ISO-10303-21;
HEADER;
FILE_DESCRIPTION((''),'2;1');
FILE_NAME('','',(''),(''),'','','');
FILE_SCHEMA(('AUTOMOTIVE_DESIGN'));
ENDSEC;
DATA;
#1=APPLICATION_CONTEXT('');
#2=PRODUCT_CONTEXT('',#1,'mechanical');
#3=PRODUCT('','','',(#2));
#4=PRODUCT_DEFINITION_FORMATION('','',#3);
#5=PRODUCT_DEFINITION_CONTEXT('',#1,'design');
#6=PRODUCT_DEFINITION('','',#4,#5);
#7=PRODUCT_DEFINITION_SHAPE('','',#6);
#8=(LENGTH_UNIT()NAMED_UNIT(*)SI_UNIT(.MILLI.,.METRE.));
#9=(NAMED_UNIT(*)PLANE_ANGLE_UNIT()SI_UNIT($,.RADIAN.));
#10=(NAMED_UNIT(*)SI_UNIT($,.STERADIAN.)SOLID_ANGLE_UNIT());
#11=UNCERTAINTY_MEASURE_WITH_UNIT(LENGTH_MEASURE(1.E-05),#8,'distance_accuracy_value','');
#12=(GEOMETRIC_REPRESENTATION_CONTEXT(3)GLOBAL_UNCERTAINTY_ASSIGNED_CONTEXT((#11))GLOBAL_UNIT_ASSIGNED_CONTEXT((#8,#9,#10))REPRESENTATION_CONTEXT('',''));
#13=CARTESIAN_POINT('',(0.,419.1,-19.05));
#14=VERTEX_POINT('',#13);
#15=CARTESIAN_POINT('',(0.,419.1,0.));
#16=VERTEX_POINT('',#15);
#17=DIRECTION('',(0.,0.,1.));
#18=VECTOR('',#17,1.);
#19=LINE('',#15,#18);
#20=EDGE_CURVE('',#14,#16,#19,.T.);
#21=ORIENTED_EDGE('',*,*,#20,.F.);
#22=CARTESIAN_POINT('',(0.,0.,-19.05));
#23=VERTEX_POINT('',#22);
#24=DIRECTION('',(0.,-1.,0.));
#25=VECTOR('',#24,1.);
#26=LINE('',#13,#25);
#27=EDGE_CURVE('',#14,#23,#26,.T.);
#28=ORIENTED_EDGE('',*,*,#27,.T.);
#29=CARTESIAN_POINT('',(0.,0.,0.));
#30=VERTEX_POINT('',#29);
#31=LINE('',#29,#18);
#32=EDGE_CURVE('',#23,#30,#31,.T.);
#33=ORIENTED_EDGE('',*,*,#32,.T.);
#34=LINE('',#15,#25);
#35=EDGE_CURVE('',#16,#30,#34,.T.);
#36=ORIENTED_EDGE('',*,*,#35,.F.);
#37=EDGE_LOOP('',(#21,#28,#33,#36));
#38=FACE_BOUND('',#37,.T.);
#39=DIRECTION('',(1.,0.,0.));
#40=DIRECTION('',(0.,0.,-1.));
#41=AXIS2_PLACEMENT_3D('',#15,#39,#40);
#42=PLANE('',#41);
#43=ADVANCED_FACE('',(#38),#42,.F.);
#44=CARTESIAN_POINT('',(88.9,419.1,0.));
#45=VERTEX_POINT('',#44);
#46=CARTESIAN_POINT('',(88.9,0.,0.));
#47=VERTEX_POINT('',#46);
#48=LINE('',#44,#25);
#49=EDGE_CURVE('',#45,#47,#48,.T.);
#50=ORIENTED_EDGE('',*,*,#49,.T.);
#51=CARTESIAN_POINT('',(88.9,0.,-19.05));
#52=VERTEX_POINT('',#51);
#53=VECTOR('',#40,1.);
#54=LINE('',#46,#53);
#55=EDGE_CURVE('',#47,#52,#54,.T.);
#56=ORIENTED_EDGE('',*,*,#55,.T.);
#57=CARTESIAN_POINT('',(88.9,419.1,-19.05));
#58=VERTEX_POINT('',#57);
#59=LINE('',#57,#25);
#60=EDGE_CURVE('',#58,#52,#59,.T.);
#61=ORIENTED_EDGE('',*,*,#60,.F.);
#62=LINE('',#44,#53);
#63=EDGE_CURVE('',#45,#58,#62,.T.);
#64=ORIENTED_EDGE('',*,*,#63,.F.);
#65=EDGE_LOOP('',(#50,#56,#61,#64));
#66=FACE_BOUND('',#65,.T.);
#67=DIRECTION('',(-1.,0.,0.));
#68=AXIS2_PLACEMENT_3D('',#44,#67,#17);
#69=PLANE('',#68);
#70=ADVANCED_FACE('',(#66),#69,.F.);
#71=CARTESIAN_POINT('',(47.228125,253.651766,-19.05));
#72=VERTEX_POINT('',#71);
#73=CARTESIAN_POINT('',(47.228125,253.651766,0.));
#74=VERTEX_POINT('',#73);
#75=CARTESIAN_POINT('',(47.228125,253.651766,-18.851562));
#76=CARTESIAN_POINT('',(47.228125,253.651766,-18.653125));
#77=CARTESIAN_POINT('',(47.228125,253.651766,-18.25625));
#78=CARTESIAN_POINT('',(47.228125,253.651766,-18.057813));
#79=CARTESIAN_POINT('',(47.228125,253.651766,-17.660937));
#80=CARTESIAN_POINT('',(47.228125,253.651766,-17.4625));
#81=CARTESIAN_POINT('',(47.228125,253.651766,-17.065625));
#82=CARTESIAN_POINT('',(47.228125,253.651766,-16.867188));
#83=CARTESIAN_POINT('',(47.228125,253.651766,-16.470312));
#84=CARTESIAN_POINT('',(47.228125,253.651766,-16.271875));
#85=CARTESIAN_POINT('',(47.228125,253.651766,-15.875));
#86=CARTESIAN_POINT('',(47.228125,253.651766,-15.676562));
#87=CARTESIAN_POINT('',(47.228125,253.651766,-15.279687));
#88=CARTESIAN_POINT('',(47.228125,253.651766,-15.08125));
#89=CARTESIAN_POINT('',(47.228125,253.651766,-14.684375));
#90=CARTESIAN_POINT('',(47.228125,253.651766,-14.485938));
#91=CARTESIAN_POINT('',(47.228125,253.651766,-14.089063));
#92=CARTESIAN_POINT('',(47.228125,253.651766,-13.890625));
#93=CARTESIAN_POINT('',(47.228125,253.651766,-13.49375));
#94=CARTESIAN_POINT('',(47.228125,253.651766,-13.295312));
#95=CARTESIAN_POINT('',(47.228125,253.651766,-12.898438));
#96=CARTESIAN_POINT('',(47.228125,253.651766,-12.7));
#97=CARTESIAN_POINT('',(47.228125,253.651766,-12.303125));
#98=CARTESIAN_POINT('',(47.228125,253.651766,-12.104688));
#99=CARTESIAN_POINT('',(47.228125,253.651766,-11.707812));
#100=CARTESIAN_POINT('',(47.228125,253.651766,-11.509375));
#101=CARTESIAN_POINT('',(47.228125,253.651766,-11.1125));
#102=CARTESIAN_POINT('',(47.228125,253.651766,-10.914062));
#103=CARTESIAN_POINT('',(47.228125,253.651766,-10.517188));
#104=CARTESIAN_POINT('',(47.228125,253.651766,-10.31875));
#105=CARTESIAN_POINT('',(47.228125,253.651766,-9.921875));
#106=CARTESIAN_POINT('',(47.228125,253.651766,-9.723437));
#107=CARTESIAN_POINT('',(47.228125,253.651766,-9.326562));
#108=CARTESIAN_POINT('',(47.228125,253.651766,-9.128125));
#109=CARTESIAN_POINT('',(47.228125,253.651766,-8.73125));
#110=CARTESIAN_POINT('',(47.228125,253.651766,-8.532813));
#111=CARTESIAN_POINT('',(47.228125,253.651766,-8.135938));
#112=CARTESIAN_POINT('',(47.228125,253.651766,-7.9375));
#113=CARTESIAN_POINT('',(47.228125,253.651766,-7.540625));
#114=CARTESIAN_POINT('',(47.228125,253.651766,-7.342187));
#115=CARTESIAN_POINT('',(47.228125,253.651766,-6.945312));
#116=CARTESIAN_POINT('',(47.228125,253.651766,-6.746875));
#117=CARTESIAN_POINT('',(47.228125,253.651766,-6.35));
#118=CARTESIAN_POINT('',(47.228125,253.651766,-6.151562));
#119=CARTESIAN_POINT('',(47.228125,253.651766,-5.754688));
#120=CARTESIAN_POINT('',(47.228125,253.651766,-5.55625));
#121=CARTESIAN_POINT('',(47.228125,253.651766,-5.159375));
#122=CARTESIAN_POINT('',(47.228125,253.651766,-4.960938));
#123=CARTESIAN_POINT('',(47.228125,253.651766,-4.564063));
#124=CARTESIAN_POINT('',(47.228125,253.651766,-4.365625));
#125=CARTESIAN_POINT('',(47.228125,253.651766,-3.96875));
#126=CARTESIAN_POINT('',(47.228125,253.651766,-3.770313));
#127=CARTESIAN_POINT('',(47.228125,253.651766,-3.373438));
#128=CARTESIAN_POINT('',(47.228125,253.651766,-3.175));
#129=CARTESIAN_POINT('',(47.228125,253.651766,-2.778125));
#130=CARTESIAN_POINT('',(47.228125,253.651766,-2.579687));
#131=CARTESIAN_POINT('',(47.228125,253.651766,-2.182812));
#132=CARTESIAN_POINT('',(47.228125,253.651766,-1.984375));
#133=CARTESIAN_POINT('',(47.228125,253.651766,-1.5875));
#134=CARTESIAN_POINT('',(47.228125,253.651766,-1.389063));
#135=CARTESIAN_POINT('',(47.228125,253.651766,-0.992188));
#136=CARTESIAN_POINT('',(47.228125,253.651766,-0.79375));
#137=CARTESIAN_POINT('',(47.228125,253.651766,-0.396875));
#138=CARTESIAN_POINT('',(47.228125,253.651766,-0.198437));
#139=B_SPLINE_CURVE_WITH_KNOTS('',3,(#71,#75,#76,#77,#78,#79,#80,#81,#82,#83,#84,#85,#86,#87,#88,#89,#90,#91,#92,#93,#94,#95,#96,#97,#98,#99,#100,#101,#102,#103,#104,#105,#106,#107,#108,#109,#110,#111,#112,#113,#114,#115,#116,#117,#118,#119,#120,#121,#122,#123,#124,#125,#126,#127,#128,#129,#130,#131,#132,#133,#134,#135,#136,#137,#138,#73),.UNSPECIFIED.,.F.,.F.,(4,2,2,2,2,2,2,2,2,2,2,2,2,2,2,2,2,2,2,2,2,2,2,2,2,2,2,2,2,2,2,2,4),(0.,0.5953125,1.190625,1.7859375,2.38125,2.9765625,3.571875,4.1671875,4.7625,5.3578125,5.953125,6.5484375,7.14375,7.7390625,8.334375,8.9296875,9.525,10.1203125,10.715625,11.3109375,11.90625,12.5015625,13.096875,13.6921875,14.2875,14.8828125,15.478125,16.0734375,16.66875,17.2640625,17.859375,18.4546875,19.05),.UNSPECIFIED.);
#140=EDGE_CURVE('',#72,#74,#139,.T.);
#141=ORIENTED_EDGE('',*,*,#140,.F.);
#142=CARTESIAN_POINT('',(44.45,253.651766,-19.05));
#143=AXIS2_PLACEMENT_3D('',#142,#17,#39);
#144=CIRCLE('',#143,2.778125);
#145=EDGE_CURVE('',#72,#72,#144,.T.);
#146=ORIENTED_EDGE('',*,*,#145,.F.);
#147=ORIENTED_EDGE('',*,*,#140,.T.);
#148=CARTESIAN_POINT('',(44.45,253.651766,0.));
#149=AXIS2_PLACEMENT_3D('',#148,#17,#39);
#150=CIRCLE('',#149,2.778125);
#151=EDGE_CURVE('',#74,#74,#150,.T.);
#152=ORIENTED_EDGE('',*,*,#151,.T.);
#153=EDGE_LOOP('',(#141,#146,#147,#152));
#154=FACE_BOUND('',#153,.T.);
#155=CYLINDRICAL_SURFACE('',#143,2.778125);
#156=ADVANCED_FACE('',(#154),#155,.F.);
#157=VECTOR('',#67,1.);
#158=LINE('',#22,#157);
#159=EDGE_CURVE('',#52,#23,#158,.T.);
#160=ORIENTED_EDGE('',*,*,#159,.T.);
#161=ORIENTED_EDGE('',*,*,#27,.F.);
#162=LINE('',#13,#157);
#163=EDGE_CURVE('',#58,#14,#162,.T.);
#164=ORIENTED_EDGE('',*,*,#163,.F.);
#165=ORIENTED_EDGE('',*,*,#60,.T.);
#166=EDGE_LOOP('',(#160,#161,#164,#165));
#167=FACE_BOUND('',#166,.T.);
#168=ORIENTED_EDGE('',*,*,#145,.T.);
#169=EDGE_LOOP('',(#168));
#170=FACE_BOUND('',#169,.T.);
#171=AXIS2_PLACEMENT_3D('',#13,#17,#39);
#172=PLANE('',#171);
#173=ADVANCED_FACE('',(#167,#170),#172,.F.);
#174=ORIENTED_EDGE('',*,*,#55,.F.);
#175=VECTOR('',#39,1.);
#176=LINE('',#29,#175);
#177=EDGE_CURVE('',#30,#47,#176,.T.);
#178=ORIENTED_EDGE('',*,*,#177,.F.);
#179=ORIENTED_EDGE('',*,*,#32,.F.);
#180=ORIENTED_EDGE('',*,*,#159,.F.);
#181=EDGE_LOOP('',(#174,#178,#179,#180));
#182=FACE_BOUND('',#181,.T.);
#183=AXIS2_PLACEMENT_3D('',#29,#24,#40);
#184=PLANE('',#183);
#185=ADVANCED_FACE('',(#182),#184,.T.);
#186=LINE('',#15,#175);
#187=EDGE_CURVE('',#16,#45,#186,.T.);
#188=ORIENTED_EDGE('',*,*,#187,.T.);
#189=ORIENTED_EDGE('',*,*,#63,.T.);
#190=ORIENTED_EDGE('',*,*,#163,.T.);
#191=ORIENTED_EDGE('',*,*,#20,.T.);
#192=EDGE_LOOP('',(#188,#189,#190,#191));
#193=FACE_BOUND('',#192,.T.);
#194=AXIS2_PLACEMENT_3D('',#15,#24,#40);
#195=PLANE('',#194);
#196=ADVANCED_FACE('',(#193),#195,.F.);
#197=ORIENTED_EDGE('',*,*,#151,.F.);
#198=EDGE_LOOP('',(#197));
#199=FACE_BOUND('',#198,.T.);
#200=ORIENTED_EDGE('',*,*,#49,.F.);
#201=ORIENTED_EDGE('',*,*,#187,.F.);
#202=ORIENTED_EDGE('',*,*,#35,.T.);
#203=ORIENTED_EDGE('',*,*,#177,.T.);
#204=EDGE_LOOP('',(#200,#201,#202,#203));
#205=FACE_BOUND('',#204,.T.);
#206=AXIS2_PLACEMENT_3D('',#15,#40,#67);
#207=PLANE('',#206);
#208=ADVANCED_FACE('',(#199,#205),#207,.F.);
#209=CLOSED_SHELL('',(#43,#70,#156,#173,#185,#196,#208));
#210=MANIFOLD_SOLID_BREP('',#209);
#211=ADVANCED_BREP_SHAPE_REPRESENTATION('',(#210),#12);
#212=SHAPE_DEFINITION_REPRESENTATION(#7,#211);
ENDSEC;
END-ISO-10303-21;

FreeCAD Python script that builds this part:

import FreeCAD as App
import Part
import Sketcher
from FreeCAD import Vector
Q = App.Units.Quantity

doc = App.newDocument("Part")
body = doc.addObject("PartDesign::Body", "Body")

# Sketch on XZ plane
sketch1 = body.newObject("Sketcher::SketchObject", "Sketch")
sketch1.AttachmentSupport = (doc.getObject("XZ_Plane"), [""])
sketch1.MapMode = "FlatFace"
sketch1.addGeometry(Part.LineSegment(Vector(0, -19, 0), Vector(0, 0, 0)), False)
sketch1.addGeometry(Part.LineSegment(Vector(0, 0, 0), Vector(89, 0, 0)), False)
sketch1.addGeometry(Part.LineSegment(Vector(89, 0, 0), Vector(89, -19, 0)), False)
sketch1.addGeometry(Part.LineSegment(Vector(89, -19, 0), Vector(0, -19, 0)), False)
sketch1.addConstraint(Sketcher.Constraint("Coincident", 0, 2, 1, 1))
sketch1.addConstraint(Sketcher.Constraint("Coincident", 1, 2, 2, 1))
sketch1.addConstraint(Sketcher.Constraint("Coincident", 2, 2, 3, 1))
sketch1.addConstraint(Sketcher.Constraint("Coincident", 3, 2, 0, 1))
sketch1.addConstraint(Sketcher.Constraint("Vertical", 0))
sketch1.addConstraint(Sketcher.Constraint("Horizontal", 1))
sketch1.addConstraint(Sketcher.Constraint("Vertical", 2))
sketch1.addConstraint(Sketcher.Constraint("Horizontal", 3))
sketch1.addConstraint(Sketcher.Constraint("Coincident", 0, 2, -1, 1))
sketch1.addConstraint(Sketcher.Constraint("DistanceX", 1, 1, 1, 2, Q("3.5 in")))
sketch1.addConstraint(Sketcher.Constraint("DistanceY", 0, 1, 0, 2, Q("0.75 in")))
pad1 = body.newObject("PartDesign::Pad", "Pad")
pad1.Profile = sketch1
pad1.Length = Q("16.5 in")
pad1.Reversed = True

# Sketch on XY plane
sketch2 = body.newObject("Sketcher::SketchObject", "Sketch001")
sketch2.AttachmentSupport = (doc.getObject("XY_Plane"), [""])
sketch2.MapMode = "FlatFace"
sketch2.addGeometry(Part.Circle(Vector(44.5, 253.7, 0), Vector(0, 0, 1), 2.8), False)
sketch2.addConstraint(Sketcher.Constraint("Diameter", 0, Q("0.21875 in")))
sketch2.addConstraint(Sketcher.Constraint("DistanceX", -1, 1, 0, 3, Q("1.75 in")))
sketch2.addConstraint(Sketcher.Constraint("DistanceY", -1, 1, 0, 3, Q("253.651766 mm")))
pocket1 = body.newObject("PartDesign::Pocket", "Pocket")
pocket1.Profile = sketch2
pocket1.Type = "ThroughAll"

doc.recompute()
